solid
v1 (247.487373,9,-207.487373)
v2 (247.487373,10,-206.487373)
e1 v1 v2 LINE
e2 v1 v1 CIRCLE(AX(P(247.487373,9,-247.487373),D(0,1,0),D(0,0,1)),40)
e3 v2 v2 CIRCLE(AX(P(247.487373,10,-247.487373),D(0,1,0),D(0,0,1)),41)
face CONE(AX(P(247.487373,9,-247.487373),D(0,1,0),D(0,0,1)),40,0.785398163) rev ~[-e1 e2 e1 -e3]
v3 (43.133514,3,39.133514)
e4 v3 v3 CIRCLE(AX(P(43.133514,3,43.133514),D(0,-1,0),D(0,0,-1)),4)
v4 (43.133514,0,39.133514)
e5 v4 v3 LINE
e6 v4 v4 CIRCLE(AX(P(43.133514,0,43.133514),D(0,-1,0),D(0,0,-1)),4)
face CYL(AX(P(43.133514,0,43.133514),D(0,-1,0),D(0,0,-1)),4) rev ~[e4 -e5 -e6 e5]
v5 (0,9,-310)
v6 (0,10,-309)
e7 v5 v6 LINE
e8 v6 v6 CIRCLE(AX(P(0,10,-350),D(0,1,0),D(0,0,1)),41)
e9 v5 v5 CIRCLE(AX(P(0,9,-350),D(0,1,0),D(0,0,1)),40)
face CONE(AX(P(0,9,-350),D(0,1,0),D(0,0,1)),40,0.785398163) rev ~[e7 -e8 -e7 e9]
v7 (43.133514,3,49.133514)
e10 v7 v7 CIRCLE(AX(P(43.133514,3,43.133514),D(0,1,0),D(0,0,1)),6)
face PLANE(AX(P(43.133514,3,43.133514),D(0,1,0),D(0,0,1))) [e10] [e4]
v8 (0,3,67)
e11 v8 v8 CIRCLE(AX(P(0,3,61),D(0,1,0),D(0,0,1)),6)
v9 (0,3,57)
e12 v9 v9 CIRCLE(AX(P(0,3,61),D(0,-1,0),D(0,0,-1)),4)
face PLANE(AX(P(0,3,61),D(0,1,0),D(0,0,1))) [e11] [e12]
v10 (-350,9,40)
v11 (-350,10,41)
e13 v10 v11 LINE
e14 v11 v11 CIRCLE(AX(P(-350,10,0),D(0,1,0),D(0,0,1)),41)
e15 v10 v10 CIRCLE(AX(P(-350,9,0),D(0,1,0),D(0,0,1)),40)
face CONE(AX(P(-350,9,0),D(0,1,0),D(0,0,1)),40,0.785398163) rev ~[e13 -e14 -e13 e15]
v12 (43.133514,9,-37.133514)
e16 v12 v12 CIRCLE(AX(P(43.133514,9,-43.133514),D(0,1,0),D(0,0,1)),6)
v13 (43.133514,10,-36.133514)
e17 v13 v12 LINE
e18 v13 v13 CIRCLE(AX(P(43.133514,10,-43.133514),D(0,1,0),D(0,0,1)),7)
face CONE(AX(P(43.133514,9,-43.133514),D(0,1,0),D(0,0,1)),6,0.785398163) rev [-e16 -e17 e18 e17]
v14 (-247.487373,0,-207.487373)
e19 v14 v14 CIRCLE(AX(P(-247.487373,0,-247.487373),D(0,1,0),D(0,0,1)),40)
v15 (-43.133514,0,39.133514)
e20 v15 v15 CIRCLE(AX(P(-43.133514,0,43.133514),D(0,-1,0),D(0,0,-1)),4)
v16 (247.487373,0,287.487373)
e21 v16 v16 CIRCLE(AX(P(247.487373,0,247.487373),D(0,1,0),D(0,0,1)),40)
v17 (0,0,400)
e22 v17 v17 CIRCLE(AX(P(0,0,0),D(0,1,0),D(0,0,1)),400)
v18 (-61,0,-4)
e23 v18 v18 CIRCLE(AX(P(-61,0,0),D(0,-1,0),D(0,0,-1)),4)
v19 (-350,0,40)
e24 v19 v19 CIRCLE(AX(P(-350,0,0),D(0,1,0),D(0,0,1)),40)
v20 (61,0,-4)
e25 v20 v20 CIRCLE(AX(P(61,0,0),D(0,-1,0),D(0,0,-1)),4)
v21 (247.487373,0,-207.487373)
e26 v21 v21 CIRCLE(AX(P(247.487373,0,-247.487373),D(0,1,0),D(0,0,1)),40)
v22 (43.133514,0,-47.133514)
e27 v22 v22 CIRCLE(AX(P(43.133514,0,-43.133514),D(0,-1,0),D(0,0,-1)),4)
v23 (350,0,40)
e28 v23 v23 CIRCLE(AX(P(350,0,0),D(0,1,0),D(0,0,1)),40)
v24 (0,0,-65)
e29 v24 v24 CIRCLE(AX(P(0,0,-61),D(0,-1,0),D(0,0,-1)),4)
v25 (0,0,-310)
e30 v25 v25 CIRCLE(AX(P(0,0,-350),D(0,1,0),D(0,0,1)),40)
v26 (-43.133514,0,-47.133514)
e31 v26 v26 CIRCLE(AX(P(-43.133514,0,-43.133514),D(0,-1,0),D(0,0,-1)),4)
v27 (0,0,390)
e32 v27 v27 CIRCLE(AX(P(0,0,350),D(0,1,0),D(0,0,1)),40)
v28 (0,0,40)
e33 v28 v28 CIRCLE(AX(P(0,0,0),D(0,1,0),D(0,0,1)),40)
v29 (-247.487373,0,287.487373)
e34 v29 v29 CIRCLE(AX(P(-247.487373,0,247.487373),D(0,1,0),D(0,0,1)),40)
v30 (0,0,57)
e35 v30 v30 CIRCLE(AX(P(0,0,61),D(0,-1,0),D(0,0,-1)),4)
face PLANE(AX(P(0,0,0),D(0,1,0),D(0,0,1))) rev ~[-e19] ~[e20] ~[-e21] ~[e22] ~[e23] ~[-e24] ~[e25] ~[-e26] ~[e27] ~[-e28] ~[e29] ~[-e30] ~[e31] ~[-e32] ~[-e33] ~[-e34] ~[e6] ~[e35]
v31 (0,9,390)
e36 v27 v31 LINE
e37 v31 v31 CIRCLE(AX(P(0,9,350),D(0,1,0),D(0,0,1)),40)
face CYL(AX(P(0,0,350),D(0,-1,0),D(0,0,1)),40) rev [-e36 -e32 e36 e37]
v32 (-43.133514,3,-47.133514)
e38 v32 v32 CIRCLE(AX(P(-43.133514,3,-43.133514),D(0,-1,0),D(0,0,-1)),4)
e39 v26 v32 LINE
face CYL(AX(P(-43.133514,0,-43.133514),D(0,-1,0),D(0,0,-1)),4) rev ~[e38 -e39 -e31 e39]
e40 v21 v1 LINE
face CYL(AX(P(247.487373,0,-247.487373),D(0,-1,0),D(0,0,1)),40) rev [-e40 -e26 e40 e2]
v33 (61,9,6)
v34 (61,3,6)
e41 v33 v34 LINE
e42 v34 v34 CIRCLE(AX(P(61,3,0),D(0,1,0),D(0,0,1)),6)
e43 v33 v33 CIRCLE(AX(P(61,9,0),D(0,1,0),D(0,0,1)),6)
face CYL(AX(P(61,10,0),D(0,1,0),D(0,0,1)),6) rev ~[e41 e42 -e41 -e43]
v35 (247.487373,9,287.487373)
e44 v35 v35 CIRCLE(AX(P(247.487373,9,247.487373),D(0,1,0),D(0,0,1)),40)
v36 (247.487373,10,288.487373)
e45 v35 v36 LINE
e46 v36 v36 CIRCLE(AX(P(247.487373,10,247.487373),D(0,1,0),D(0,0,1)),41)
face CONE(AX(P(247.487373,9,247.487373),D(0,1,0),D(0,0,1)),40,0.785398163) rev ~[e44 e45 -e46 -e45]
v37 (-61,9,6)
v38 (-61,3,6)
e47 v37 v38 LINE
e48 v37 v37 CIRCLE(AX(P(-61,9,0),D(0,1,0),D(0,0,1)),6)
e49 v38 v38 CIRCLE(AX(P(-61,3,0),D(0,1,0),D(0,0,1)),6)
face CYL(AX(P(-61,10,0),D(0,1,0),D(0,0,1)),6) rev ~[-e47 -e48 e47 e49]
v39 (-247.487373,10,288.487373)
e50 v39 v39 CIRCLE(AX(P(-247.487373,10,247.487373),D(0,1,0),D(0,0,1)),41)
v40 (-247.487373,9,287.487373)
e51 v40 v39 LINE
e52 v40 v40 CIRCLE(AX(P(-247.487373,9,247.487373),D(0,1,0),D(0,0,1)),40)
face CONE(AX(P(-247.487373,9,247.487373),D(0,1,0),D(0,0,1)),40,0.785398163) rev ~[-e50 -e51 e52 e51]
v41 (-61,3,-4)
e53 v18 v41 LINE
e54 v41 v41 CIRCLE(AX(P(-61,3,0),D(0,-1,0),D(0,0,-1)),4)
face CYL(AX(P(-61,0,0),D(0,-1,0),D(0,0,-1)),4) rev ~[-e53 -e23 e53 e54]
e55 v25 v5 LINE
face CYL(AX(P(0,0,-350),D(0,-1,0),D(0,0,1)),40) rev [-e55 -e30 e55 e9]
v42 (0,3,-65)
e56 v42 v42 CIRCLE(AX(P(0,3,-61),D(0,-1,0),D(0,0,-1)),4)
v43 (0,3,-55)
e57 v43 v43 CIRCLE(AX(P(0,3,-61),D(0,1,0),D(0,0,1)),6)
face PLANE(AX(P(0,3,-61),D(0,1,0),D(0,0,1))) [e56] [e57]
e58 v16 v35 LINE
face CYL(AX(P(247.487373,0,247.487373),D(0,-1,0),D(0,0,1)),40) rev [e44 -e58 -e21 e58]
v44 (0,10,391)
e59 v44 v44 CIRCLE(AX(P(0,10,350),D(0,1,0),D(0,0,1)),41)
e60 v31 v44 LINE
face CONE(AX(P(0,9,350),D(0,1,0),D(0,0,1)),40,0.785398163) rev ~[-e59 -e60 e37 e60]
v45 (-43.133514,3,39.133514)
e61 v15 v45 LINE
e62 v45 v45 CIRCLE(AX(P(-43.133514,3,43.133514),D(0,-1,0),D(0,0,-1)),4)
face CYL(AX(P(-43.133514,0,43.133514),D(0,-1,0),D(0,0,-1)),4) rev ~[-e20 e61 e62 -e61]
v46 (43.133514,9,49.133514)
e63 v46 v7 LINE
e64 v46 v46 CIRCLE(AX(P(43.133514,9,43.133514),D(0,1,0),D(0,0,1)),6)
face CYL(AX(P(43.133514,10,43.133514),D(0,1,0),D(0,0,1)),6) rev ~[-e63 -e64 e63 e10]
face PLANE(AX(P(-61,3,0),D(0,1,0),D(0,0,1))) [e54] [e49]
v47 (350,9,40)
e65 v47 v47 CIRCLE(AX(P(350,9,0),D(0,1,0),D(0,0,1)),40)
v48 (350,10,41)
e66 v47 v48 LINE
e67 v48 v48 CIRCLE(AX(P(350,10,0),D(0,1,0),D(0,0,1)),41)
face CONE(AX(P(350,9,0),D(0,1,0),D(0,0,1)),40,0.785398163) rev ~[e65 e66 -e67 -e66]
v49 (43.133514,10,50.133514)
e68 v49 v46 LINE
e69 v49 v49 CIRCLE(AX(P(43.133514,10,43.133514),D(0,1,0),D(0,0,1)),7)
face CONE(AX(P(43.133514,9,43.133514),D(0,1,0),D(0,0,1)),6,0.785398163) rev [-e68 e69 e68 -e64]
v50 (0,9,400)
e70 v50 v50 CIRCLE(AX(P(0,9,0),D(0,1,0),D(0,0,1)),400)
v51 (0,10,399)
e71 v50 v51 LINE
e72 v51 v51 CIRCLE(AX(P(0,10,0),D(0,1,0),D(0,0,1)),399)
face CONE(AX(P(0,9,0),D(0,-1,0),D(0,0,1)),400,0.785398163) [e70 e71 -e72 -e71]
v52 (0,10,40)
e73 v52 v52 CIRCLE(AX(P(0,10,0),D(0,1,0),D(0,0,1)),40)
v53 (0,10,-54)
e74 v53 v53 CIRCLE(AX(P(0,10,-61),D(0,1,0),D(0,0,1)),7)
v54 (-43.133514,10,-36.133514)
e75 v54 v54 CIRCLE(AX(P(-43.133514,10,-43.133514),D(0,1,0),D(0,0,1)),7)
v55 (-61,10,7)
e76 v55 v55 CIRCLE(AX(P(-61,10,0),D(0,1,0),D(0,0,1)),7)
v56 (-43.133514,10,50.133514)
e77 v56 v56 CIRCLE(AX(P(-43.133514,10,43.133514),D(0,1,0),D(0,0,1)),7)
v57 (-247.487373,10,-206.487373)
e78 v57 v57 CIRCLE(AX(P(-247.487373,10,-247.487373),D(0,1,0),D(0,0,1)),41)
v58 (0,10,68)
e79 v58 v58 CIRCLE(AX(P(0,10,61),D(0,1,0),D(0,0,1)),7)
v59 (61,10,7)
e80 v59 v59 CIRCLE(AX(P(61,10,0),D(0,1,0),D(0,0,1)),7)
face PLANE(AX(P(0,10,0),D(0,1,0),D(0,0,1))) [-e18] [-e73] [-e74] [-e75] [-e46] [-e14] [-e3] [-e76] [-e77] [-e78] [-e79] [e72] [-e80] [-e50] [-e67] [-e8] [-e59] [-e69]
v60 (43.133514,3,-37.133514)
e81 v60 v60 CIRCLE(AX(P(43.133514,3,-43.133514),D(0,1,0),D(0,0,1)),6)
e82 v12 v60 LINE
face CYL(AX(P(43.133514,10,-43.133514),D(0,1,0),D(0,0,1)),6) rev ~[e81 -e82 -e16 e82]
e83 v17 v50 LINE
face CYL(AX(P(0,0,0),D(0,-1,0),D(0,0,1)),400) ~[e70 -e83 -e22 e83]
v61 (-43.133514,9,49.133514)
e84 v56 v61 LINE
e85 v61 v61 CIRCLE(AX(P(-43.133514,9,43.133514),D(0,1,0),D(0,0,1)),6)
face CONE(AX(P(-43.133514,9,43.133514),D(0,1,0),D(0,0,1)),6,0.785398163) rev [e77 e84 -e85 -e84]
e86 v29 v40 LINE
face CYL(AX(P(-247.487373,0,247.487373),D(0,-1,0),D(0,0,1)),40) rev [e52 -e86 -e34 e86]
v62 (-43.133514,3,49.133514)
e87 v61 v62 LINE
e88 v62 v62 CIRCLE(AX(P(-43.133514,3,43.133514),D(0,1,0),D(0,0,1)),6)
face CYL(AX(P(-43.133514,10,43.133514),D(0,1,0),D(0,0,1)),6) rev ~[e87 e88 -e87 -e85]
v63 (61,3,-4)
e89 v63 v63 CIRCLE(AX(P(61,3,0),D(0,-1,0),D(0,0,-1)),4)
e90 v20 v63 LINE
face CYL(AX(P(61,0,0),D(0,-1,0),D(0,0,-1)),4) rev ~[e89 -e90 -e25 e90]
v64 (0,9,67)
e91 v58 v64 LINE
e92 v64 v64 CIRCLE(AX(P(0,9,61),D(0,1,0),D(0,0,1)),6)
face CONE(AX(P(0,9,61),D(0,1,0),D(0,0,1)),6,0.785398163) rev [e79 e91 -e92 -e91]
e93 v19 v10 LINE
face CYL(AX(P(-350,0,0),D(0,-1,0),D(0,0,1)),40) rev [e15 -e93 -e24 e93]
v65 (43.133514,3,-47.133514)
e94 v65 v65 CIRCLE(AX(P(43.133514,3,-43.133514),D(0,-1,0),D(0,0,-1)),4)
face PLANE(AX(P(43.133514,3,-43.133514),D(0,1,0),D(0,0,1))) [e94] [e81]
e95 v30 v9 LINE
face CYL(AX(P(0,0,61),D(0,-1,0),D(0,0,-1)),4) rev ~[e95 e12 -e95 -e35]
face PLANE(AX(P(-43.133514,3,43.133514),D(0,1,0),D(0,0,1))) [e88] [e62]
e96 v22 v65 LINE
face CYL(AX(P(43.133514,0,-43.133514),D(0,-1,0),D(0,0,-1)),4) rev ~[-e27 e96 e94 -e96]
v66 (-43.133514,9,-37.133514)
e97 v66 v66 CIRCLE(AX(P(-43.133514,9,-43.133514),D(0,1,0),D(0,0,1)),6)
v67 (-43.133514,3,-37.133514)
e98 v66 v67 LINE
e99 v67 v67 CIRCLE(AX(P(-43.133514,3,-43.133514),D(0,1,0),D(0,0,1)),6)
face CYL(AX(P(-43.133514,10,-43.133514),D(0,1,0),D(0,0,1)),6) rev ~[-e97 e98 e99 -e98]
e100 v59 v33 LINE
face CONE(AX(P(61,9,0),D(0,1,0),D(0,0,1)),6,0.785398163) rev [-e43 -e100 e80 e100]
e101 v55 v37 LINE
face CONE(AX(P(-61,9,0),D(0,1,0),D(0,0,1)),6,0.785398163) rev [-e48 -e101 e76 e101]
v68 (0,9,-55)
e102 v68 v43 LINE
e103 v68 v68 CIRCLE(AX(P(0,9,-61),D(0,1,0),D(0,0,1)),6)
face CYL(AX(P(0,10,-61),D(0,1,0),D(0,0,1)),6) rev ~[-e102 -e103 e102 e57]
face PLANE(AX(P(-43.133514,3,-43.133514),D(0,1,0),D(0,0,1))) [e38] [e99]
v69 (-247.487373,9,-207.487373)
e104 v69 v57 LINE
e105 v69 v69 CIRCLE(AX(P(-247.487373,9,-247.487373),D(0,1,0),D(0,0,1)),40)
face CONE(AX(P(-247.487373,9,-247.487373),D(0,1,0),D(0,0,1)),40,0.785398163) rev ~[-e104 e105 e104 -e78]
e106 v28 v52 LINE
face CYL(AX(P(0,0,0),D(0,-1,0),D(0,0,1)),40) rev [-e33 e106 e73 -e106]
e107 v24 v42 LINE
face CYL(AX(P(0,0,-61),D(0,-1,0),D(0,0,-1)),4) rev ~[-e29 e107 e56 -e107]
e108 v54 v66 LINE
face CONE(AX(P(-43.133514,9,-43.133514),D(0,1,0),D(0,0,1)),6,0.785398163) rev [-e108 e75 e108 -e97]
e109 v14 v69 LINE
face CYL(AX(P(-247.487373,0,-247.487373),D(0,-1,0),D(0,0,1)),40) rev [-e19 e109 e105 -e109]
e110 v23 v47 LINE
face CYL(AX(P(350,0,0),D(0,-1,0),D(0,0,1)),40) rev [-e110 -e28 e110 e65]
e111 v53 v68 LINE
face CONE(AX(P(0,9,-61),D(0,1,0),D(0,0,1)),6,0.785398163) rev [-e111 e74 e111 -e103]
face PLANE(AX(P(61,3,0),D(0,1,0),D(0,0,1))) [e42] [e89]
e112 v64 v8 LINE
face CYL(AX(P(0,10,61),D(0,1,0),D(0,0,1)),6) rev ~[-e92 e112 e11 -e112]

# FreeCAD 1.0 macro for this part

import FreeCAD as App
import Part
import Sketcher
from FreeCAD import Vector


def edges_at(feature, points):
    """Names of the edges that pass closest to the given points."""
    edges = feature.Shape.Edges
    near = lambda p: min(range(len(edges)), key=lambda i: edges[i].distToShape(Part.Vertex(*p))[0])
    return sorted({f"Edge{near(p) + 1}" for p in points})

doc = App.newDocument("Part")
params = doc.addObject("Spreadsheet::Sheet", "Params")
for row, (alias, value) in enumerate([
    ("sketch1_diameter", "800 mm"),
    ("sketch1_diameter2", "80 mm"),
    ("pad1_length", "10 mm"),
    ("chamfer_size", "1 mm"),
    ("sketch2_diameter", "12 mm"),
    ("pocket1_length", "7 mm"),
    ("chamfer2_size", "1 mm"),
    ("sketch3_diameter", "8 mm"),
    ("pocket2_length", "3 mm"),
], start=1):
    params.set(f"A{row}", alias)
    params.set(f"B{row}", "=" + value)
    params.setAlias(f"B{row}", alias)

body = doc.addObject("PartDesign::Body", "Body")

# Sketch on XZ plane
sketch1 = doc.addObject("Sketcher::SketchObject", "Sketch")
body.addObject(sketch1)
sketch1.AttachmentSupport = (doc.XZ_Plane, [""])
sketch1.MapMode = "FlatFace"
sketch1.addGeometry([
    Part.Circle(Vector(0, 0, 0), Vector(0, 0, 1), 400),  # 0
    Part.Circle(Vector(-247, -247, 0), Vector(0, 0, 1), 40),  # 1
    Part.Circle(Vector(0, -350, 0), Vector(0, 0, 1), 40),  # 2
    Part.Circle(Vector(-350, 0, 0), Vector(0, 0, 1), 40),  # 3
    Part.Circle(Vector(-247, 247, 0), Vector(0, 0, 1), 40),  # 4
    Part.Circle(Vector(247, -247, 0), Vector(0, 0, 1), 40),  # 5
    Part.Circle(Vector(350, 0, 0), Vector(0, 0, 1), 40),  # 6
    Part.Circle(Vector(0, 0, 0), Vector(0, 0, 1), 40),  # 7
    Part.Circle(Vector(0, 350, 0), Vector(0, 0, 1), 40),  # 8
    Part.Circle(Vector(247, 247, 0), Vector(0, 0, 1), 40),  # 9
], False)
sketch1.addConstraint([
    Sketcher.Constraint("Coincident", 0, 3, -1, 1),
    Sketcher.Constraint("Coincident", 7, 3, -1, 1),
    Sketcher.Constraint("Equal", 1, 2),
    Sketcher.Constraint("Equal", 2, 3),
    Sketcher.Constraint("Equal", 3, 4),
    Sketcher.Constraint("Equal", 4, 5),
    Sketcher.Constraint("Equal", 5, 6),
    Sketcher.Constraint("Equal", 6, 7),
    Sketcher.Constraint("Equal", 7, 8),
    Sketcher.Constraint("Equal", 8, 9),
    Sketcher.Constraint("Symmetric", 4, 3, 5, 3, -1, 1),
    Sketcher.Constraint("Symmetric", 3, 3, 6, 3, -1, 1),
    Sketcher.Constraint("Symmetric", 2, 3, 8, 3, -1, 1),
    Sketcher.Constraint("Symmetric", 1, 3, 9, 3, -1, 1),
    Sketcher.Constraint("Symmetric", 1, 3, 5, 3, -2),
    Sketcher.Constraint("PointOnObject", 2, 3, -2),
    Sketcher.Constraint("PointOnObject", 3, 3, -1),
    Sketcher.Constraint("Diameter", 0, 800.0),
    Sketcher.Constraint("Diameter", 1, 80.0),
    Sketcher.Constraint("DistanceY", 2, 3, -1, 1, 350.0),
    Sketcher.Constraint("DistanceX", 3, 3, -1, 1, 350.0),
    Sketcher.Constraint("DistanceX", 1, 3, -1, 1, 247.487373),
    Sketcher.Constraint("DistanceY", 1, 3, -1, 1, 247.487373),
])
sketch1.setExpression("Constraints[17]", "Params.sketch1_diameter")
sketch1.setExpression("Constraints[18]", "Params.sketch1_diameter2")
pad1 = doc.addObject("PartDesign::Pad", "Pad")
body.addObject(pad1)
pad1.Profile = sketch1
pad1.setExpression("Length", "Params.pad1_length")
pad1.Reversed = True
doc.recompute()

chamfer = doc.addObject("PartDesign::Chamfer", "Chamfer")
body.addObject(chamfer)
chamfer.Base = (pad1, edges_at(pad1, [
    (247.487, 10, -287.487),
    (350, 10, -40),
    (247.487, 10, 207.487),
    (0, 10, 310),
    (-247.487, 10, 207.487),
    (-350, 10, -40),
    (-247.487, 10, -287.487),
    (0, 10, -400),
    (0, 10, -390),
]))
chamfer.setExpression("Size", "Params.chamfer_size")

# Sketch on XZ plane
sketch2 = doc.addObject("Sketcher::SketchObject", "Sketch001")
body.addObject(sketch2)
sketch2.AttachmentSupport = (doc.XZ_Plane, [""])
sketch2.MapMode = "FlatFace"
sketch2.AttachmentOffset = App.Placement(Vector(0, 0, -10), App.Rotation())
sketch2.addGeometry([
    Part.Circle(Vector(-61, 0, 0), Vector(0, 0, 1), 6),  # 0
    Part.Circle(Vector(-43, -43, 0), Vector(0, 0, 1), 6),  # 1
    Part.Circle(Vector(0, -61, 0), Vector(0, 0, 1), 6),  # 2
    Part.Circle(Vector(43, -43, 0), Vector(0, 0, 1), 6),  # 3
    Part.Circle(Vector(61, 0, 0), Vector(0, 0, 1), 6),  # 4
    Part.Circle(Vector(43, 43, 0), Vector(0, 0, 1), 6),  # 5
    Part.Circle(Vector(0, 61, 0), Vector(0, 0, 1), 6),  # 6
    Part.Circle(Vector(-43, 43, 0), Vector(0, 0, 1), 6),  # 7
], False)
sketch2.addConstraint([
    Sketcher.Constraint("Equal", 0, 1),
    Sketcher.Constraint("Equal", 1, 2),
    Sketcher.Constraint("Equal", 2, 3),
    Sketcher.Constraint("Equal", 3, 4),
    Sketcher.Constraint("Equal", 4, 5),
    Sketcher.Constraint("Equal", 5, 6),
    Sketcher.Constraint("Equal", 6, 7),
    Sketcher.Constraint("Symmetric", 0, 3, 4, 3, -1, 1),
    Sketcher.Constraint("Symmetric", 1, 3, 5, 3, -1, 1),
    Sketcher.Constraint("Symmetric", 2, 3, 6, 3, -1, 1),
    Sketcher.Constraint("Symmetric", 3, 3, 7, 3, -1, 1),
    Sketcher.Constraint("Symmetric", 1, 3, 3, 3, -2),
    Sketcher.Constraint("PointOnObject", 0, 3, -1),
    Sketcher.Constraint("PointOnObject", 2, 3, -2),
    Sketcher.Constraint("Diameter", 0, 12.0),
    Sketcher.Constraint("DistanceX", 0, 3, -1, 1, 61.0),
    Sketcher.Constraint("DistanceY", 2, 3, -1, 1, 61.0),
    Sketcher.Constraint("DistanceX", 1, 3, -1, 1, 43.133514),
    Sketcher.Constraint("DistanceY", 1, 3, -1, 1, 43.133514),
])
sketch2.setExpression("Constraints[14]", "Params.sketch2_diameter")
pocket1 = doc.addObject("PartDesign::Pocket", "Pocket")
body.addObject(pocket1)
pocket1.Profile = sketch2
pocket1.setExpression("Length", "Params.pocket1_length")
pocket1.Reversed = True
doc.recompute()

chamfer2 = doc.addObject("PartDesign::Chamfer", "Chamfer001")
body.addObject(chamfer2)
chamfer2.Base = (pocket1, edges_at(pocket1, [
    (-61, 10, -6),
    (-43.134, 10, -49.134),
    (0, 10, -67),
    (43.134, 10, -49.134),
    (61, 10, -6),
    (43.134, 10, 37.134),
    (0, 10, 55),
    (-43.134, 10, 37.134),
]))
chamfer2.setExpression("Size", "Params.chamfer2_size")

# Sketch on XZ plane
sketch3 = doc.addObject("Sketcher::SketchObject", "Sketch002")
body.addObject(sketch3)
sketch3.AttachmentSupport = (doc.XZ_Plane, [""])
sketch3.MapMode = "FlatFace"
sketch3.addGeometry([
    Part.Circle(Vector(-61, 0, 0), Vector(0, 0, 1), 4),  # 0
    Part.Circle(Vector(-43.1, 43.1, 0), Vector(0, 0, 1), 4),  # 1
    Part.Circle(Vector(0, 61, 0), Vector(0, 0, 1), 4),  # 2
    Part.Circle(Vector(43.1, 43.1, 0), Vector(0, 0, 1), 4),  # 3
    Part.Circle(Vector(61, 0, 0), Vector(0, 0, 1), 4),  # 4
    Part.Circle(Vector(43.1, -43.1, 0), Vector(0, 0, 1), 4),  # 5
    Part.Circle(Vector(0, -61, 0), Vector(0, 0, 1), 4),  # 6
    Part.Circle(Vector(-43.1, -43.1, 0), Vector(0, 0, 1), 4),  # 7
], False)
sketch3.addConstraint([
    Sketcher.Constraint("Equal", 0, 1),
    Sketcher.Constraint("Equal", 1, 2),
    Sketcher.Constraint("Equal", 2, 3),
    Sketcher.Constraint("Equal", 3, 4),
    Sketcher.Constraint("Equal", 4, 5),
    Sketcher.Constraint("Equal", 5, 6),
    Sketcher.Constraint("Equal", 6, 7),
    Sketcher.Constraint("Symmetric", 0, 3, 4, 3, -1, 1),
    Sketcher.Constraint("Symmetric", 1, 3, 5, 3, -1, 1),
    Sketcher.Constraint("Symmetric", 2, 3, 6, 3, -1, 1),
    Sketcher.Constraint("Symmetric", 3, 3, 7, 3, -1, 1),
    Sketcher.Constraint("Symmetric", 1, 3, 3, 3, -2),
    Sketcher.Constraint("PointOnObject", 0, 3, -1),
    Sketcher.Constraint("PointOnObject", 2, 3, -2),
    Sketcher.Constraint("Diameter", 0, 8.0),
    Sketcher.Constraint("DistanceX", 0, 3, -1, 1, 61.0),
    Sketcher.Constraint("DistanceY", -1, 1, 2, 3, 61.0),
    Sketcher.Constraint("DistanceX", 1, 3, -1, 1, 43.133514),
    Sketcher.Constraint("DistanceY", -1, 1, 1, 3, 43.133514),
])
sketch3.setExpression("Constraints[14]", "Params.sketch3_diameter")
pocket2 = doc.addObject("PartDesign::Pocket", "Pocket001")
body.addObject(pocket2)
pocket2.Profile = sketch3
pocket2.setExpression("Length", "Params.pocket2_length")

doc.recompute()
